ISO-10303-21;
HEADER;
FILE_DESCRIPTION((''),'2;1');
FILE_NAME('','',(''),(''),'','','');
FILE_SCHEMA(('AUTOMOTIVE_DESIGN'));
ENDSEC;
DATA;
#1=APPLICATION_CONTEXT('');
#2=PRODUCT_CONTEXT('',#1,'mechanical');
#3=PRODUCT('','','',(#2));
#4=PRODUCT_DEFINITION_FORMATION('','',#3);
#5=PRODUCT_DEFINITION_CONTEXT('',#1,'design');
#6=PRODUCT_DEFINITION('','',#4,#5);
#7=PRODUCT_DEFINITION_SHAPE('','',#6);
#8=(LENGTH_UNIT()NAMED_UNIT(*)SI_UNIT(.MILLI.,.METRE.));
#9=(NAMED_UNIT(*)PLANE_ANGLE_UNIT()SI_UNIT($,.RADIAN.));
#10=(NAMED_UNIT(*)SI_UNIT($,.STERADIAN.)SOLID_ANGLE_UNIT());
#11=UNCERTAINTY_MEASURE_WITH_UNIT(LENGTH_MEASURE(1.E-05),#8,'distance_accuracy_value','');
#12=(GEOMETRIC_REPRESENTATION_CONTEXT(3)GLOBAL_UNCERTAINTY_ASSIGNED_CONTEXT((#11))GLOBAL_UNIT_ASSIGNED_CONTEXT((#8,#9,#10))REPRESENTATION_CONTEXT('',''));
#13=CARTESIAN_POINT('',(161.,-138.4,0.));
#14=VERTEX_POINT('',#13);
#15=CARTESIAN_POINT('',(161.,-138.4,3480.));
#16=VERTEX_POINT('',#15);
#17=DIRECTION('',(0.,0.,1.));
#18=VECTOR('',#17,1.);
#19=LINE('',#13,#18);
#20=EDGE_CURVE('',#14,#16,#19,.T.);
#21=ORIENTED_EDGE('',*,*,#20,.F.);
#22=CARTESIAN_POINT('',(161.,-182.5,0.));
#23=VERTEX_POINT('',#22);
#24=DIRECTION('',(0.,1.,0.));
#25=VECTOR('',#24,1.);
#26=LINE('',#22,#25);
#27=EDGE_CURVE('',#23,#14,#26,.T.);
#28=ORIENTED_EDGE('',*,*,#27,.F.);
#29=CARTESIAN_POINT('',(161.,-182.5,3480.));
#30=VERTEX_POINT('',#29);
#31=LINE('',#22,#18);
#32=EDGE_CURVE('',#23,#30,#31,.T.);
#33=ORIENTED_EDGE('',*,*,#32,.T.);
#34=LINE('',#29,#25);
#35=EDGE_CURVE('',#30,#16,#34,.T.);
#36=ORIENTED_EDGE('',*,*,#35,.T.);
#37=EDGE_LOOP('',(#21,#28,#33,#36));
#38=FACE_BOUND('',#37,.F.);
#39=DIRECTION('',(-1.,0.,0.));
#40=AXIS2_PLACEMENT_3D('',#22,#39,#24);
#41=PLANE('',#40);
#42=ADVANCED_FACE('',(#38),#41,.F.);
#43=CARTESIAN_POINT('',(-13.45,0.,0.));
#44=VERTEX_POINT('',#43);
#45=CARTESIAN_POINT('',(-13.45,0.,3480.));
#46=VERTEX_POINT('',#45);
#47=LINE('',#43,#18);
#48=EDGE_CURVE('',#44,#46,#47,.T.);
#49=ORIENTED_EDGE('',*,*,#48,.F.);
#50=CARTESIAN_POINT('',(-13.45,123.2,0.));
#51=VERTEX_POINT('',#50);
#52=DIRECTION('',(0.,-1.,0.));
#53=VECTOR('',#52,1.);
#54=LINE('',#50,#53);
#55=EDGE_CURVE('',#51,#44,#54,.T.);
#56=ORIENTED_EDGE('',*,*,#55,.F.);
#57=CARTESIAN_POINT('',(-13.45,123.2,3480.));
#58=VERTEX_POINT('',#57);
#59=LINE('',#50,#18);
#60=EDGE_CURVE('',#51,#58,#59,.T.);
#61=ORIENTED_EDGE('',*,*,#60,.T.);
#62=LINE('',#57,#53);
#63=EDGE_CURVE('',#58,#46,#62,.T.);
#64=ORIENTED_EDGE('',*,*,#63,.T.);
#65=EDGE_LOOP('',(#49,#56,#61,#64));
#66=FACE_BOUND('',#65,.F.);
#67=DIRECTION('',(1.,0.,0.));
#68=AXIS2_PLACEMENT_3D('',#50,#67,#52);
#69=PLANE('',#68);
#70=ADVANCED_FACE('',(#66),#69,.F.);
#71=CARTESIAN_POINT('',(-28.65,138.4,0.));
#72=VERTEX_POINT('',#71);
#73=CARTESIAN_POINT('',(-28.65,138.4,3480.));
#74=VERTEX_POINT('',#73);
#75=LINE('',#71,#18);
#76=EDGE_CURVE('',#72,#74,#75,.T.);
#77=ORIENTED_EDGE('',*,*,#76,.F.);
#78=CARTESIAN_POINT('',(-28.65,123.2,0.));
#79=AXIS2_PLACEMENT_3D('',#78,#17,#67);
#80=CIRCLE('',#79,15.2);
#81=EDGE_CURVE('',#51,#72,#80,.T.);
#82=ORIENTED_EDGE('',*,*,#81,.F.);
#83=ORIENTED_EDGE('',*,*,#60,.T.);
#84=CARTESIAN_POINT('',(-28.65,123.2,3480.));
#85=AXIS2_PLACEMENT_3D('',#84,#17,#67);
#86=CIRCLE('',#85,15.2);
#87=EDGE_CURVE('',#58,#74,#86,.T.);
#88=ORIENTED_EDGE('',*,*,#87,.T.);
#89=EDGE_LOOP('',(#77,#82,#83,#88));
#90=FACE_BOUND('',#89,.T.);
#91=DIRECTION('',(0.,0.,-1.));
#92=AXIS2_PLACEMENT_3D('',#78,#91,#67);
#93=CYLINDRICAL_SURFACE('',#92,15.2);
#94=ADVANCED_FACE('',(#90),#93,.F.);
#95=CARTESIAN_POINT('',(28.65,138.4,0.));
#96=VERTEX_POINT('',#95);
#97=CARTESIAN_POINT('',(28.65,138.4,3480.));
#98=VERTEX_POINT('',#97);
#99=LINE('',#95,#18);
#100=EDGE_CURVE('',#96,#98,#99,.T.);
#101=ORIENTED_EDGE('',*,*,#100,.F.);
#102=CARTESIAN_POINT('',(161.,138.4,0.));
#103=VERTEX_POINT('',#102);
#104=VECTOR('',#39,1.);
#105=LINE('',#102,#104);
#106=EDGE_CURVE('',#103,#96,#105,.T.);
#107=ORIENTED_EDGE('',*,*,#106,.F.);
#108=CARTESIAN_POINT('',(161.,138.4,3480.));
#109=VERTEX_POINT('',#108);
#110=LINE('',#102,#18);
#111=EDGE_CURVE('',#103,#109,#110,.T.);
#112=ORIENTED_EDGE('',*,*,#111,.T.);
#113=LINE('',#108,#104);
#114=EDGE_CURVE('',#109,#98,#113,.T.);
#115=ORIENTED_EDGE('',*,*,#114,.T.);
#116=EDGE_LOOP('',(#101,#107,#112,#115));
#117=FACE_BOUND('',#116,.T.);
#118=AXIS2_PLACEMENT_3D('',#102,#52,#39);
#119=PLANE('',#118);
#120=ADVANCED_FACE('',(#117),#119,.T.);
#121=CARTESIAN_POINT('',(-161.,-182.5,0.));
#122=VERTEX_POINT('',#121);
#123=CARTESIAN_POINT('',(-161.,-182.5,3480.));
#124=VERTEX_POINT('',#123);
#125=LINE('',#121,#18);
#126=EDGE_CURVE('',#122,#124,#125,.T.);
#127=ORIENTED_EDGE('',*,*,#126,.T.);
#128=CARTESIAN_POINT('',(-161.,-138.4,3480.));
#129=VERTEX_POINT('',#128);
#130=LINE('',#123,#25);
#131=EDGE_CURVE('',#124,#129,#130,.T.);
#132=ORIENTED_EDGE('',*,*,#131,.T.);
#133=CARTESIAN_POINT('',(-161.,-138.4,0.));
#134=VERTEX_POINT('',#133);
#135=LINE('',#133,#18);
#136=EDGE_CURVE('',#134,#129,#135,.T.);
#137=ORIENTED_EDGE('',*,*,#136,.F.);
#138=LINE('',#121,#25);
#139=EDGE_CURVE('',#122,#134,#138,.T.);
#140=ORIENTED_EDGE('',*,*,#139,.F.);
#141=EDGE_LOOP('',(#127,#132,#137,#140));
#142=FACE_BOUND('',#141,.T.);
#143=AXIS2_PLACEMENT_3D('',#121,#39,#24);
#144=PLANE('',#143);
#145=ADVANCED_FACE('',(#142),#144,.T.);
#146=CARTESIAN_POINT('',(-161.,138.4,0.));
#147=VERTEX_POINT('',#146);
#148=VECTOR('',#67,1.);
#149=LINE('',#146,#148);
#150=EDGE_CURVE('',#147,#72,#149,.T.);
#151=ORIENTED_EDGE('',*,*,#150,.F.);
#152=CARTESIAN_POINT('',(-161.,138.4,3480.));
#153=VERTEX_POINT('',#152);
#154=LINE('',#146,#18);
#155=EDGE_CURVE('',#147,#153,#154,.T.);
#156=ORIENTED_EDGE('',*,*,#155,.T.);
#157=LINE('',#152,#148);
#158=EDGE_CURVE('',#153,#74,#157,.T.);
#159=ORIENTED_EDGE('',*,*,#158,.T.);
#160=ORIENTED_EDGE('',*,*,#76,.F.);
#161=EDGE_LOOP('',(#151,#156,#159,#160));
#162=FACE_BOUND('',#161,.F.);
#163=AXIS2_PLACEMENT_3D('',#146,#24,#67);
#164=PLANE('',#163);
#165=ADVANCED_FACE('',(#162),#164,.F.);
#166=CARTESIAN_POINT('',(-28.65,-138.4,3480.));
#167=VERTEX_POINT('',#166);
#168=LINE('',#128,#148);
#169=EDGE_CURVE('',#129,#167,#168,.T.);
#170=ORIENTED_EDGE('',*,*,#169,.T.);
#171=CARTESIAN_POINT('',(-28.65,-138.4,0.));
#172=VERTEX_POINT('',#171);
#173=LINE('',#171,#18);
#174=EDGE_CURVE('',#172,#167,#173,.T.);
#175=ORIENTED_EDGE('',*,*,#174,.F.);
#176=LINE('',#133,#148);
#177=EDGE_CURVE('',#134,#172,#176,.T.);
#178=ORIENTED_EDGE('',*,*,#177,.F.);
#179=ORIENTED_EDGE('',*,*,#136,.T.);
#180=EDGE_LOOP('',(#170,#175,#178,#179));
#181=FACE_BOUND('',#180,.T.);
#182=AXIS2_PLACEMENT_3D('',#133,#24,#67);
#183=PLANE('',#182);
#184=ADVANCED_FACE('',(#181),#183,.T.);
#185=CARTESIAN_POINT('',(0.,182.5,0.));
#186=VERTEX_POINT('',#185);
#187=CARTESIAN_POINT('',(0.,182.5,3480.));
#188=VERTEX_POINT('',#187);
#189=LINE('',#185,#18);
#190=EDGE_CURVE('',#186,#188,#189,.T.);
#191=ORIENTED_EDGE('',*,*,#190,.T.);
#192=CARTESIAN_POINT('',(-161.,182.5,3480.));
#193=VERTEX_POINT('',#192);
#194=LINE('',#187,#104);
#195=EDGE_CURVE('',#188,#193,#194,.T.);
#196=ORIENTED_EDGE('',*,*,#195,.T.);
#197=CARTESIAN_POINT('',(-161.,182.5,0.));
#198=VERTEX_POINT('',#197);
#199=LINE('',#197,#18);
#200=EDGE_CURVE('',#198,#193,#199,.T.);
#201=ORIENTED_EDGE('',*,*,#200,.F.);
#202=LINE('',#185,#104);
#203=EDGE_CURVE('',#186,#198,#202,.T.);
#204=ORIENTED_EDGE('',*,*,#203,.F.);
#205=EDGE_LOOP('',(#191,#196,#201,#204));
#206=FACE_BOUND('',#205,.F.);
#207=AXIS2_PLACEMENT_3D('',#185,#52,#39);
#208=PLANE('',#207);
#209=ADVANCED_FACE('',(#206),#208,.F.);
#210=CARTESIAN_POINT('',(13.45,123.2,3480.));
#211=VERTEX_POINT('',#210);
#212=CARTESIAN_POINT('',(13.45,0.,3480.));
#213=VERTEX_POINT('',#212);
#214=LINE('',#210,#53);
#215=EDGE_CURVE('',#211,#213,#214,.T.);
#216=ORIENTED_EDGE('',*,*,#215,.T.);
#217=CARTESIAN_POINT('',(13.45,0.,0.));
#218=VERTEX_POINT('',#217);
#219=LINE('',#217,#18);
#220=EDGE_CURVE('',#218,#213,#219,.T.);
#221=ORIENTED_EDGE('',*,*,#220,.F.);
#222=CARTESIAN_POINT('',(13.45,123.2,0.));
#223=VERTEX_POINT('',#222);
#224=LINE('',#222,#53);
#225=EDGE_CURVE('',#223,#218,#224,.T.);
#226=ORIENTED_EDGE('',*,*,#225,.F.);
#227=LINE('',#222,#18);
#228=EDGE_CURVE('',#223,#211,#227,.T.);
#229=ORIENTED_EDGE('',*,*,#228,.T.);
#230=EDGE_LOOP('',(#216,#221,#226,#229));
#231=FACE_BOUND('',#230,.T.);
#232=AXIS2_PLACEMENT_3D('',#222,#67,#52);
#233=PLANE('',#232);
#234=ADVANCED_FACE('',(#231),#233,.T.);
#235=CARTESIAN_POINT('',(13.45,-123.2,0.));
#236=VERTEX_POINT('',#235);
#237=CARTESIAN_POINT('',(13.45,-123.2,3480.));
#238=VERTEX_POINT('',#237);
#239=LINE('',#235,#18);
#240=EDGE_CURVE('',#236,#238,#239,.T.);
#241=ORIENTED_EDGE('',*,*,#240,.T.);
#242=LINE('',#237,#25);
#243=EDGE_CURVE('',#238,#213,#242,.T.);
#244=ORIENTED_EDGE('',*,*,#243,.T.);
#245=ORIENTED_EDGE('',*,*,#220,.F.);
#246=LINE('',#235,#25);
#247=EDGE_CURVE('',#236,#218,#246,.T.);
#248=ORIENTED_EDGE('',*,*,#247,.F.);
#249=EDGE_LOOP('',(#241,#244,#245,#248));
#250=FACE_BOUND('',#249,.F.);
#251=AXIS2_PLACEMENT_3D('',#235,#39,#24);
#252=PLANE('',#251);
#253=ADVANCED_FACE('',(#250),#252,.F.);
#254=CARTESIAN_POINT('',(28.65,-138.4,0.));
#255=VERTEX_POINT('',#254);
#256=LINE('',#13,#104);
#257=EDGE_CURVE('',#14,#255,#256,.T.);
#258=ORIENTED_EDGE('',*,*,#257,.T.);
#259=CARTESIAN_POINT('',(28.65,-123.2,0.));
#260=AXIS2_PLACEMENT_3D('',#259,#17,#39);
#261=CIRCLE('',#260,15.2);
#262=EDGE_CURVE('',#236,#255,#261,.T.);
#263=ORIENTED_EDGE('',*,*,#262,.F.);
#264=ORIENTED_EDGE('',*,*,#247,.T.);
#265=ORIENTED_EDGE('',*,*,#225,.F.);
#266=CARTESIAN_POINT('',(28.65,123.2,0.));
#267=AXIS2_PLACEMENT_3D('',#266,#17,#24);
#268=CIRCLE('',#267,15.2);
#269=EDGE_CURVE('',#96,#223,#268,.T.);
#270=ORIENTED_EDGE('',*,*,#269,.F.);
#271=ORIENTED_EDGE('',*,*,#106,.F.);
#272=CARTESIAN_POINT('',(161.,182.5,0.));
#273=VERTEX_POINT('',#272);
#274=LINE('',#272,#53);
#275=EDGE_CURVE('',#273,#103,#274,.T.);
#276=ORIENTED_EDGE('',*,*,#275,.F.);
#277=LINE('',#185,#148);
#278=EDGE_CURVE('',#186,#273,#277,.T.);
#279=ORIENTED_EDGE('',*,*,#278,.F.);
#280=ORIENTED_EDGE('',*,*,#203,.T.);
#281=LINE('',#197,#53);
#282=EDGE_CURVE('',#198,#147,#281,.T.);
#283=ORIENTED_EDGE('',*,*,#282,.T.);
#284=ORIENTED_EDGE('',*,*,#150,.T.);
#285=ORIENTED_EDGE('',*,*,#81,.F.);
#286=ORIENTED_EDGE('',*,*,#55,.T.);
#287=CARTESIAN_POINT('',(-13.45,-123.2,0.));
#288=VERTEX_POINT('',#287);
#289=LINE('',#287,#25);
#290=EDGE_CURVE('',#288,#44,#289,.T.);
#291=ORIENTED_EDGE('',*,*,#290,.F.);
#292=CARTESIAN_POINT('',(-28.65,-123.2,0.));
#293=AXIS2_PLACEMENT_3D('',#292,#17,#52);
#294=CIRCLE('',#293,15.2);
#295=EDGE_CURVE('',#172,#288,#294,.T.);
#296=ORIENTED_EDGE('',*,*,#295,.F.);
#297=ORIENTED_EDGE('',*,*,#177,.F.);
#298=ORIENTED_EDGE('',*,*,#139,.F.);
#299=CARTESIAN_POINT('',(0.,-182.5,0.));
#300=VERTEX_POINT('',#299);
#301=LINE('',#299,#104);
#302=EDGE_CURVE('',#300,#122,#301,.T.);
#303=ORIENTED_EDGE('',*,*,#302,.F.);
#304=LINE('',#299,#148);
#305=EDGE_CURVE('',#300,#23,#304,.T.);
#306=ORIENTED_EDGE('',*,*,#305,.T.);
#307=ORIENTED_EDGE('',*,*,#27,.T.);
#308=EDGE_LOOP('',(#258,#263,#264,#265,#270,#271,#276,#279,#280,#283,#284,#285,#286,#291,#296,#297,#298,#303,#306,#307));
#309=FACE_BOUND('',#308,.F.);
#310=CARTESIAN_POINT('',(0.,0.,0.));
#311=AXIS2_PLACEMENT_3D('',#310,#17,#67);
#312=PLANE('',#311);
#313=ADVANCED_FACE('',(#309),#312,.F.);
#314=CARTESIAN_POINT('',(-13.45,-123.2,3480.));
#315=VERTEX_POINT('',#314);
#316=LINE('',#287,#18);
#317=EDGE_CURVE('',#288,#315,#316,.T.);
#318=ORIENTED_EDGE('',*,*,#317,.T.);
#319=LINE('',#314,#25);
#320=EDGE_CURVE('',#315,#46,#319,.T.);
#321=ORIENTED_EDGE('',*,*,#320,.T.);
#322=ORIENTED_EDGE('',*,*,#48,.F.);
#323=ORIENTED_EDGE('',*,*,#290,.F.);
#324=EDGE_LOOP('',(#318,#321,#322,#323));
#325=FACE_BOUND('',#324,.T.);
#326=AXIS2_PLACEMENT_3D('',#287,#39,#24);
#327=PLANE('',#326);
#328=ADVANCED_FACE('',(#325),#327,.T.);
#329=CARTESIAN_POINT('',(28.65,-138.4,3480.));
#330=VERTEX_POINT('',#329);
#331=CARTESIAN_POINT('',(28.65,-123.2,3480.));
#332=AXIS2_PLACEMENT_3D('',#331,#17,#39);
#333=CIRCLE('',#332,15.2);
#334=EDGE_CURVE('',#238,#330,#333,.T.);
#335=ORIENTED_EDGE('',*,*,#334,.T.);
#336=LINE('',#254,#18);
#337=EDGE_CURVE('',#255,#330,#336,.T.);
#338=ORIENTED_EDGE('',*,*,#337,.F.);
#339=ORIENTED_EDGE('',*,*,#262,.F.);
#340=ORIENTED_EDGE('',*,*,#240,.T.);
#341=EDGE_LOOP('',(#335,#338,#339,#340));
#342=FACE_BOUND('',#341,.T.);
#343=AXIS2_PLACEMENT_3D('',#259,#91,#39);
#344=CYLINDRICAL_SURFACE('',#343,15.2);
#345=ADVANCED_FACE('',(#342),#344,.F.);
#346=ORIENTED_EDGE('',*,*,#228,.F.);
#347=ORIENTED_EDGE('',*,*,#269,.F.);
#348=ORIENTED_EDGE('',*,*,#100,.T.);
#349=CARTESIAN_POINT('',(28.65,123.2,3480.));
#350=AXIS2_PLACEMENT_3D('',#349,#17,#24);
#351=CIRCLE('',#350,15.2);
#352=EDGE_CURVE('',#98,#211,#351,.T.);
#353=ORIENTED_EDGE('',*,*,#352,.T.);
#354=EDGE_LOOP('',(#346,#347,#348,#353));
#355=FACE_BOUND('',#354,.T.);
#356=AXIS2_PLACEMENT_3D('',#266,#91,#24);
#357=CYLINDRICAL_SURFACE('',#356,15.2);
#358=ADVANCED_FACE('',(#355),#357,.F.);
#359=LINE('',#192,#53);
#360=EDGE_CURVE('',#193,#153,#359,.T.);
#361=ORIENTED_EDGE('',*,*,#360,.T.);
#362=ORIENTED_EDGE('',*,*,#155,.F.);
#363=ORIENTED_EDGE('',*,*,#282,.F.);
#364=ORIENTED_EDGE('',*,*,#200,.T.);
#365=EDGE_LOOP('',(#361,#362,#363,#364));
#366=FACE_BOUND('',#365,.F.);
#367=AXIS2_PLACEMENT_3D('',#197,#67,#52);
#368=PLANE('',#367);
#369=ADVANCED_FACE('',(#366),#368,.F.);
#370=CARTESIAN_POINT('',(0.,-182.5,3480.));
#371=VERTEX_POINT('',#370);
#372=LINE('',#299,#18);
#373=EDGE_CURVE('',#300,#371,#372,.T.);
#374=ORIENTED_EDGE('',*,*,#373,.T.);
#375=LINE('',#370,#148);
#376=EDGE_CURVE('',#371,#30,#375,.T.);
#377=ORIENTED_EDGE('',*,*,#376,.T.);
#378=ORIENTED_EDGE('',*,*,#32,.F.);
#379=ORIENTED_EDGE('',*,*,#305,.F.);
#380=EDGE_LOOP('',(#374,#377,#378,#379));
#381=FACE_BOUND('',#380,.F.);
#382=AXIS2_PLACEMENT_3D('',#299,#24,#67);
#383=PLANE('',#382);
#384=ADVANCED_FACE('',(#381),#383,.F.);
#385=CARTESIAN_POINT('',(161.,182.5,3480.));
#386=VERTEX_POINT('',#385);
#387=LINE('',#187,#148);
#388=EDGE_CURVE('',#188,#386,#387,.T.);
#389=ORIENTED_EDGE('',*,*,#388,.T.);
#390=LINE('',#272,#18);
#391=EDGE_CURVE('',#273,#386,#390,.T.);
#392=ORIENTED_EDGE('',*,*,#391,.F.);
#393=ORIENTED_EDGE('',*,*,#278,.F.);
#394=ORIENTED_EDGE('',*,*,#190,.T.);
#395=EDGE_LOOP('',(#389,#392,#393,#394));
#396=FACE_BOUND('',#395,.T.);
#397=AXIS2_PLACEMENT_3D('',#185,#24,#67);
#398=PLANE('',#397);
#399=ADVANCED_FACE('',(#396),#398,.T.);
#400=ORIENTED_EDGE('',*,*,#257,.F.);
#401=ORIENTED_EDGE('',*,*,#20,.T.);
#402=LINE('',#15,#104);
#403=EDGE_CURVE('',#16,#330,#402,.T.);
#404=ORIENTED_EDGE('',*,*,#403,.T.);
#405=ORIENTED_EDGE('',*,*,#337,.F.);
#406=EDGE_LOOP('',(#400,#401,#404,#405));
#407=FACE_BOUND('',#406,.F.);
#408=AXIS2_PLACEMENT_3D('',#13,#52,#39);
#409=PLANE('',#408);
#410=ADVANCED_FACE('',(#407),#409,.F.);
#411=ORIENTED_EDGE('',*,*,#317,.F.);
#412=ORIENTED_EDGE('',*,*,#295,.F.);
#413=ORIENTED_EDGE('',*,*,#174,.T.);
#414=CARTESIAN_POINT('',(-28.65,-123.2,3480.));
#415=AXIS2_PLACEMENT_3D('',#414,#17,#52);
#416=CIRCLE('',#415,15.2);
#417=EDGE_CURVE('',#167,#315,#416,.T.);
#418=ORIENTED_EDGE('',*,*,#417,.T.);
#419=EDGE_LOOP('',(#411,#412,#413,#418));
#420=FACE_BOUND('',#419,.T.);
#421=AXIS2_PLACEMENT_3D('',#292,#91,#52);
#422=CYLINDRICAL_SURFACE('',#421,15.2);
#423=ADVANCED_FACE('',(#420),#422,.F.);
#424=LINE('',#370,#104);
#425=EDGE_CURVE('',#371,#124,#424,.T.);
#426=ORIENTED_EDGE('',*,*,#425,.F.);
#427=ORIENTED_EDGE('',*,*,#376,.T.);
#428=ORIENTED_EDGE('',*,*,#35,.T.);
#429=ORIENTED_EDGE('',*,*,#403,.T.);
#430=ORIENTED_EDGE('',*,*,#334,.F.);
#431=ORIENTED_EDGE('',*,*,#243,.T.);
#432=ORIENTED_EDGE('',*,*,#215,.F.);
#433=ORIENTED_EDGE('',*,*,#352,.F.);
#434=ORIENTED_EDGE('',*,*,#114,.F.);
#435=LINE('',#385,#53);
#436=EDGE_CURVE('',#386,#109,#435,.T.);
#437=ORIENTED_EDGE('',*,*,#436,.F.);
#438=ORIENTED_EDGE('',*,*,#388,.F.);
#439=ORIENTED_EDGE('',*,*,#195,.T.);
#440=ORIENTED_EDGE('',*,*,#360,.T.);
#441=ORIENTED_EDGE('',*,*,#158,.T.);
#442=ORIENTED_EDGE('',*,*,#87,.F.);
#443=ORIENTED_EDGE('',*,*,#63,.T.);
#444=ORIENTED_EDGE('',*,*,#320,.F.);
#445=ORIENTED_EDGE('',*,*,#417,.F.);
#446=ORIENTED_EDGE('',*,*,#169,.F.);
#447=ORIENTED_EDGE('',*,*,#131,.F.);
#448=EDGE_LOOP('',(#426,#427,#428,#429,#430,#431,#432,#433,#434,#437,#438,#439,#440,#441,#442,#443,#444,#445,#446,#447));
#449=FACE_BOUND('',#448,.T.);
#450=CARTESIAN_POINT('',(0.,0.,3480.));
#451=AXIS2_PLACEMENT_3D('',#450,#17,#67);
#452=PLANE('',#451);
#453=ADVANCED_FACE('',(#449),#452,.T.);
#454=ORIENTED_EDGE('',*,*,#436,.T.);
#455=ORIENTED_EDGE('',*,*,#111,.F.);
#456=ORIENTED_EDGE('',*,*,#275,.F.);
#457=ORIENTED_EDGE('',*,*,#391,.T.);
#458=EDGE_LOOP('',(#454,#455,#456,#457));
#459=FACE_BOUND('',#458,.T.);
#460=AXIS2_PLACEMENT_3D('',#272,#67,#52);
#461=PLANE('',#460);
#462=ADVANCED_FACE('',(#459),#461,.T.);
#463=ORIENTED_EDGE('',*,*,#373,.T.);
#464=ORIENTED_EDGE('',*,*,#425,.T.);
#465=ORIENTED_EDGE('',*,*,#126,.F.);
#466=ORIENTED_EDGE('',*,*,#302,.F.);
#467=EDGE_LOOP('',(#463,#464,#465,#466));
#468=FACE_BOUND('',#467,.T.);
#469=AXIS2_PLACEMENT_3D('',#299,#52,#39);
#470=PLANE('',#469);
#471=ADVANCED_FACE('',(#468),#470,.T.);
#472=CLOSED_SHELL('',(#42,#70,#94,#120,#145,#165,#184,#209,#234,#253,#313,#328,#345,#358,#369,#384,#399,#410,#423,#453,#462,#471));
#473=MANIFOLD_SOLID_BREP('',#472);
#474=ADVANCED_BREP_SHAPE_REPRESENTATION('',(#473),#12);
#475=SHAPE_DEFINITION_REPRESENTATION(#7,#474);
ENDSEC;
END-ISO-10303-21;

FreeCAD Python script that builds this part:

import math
import FreeCAD as App
import Part
import Sketcher

V = App.Vector
Q = App.Units.Quantity

doc = App.newDocument("Part")
body = doc.addObject("PartDesign::Body", "Body")

# Sketch on XY plane
sketch1 = doc.addObject("Sketcher::SketchObject", "Sketch")
body.addObject(sketch1)
sketch1.AttachmentSupport = (doc.XY_Plane, [""])
sketch1.MapMode = "FlatFace"
sketch1.addGeometry([
    Part.LineSegment(V(-161, -138.4, 0), V(-161, -182.5, 0)),  # 0
    Part.LineSegment(V(-161, -182.5, 0), V(161, -182.5, 0)),  # 1
    Part.LineSegment(V(161, -182.5, 0), V(161, -138.4, 0)),  # 2
    Part.LineSegment(V(161, -138.4, 0), V(28.65, -138.4, 0)),  # 3
    Part.ArcOfCircle(Part.Circle(V(28.65, -123.2, 0), V(0, 0, 1), 15.2), math.radians(180), math.radians(270)),  # 4
    Part.LineSegment(V(13.45, -123.2, 0), V(13.45, 123.2, 0)),  # 5
    Part.ArcOfCircle(Part.Circle(V(28.65, 123.2, 0), V(0, 0, 1), 15.2), math.radians(90), math.radians(180)),  # 6
    Part.LineSegment(V(28.65, 138.4, 0), V(161, 138.4, 0)),  # 7
    Part.LineSegment(V(161, 138.4, 0), V(161, 182.5, 0)),  # 8
    Part.LineSegment(V(161, 182.5, 0), V(-161, 182.5, 0)),  # 9
    Part.LineSegment(V(-161, 182.5, 0), V(-161, 138.4, 0)),  # 10
    Part.LineSegment(V(-161, 138.4, 0), V(-28.65, 138.4, 0)),  # 11
    Part.ArcOfCircle(Part.Circle(V(-28.65, 123.2, 0), V(0, 0, 1), 15.2), math.radians(0), math.radians(90)),  # 12
    Part.LineSegment(V(-13.45, 123.2, 0), V(-13.45, -123.2, 0)),  # 13
    Part.ArcOfCircle(Part.Circle(V(-28.65, -123.2, 0), V(0, 0, 1), 15.2), math.radians(-90), math.radians(0)),  # 14
    Part.LineSegment(V(-28.65, -138.4, 0), V(-161, -138.4, 0)),  # 15
], False)
sketch1.addConstraint([
    Sketcher.Constraint("Coincident", 0, 2, 1, 1),
    Sketcher.Constraint("Coincident", 1, 2, 2, 1),
    Sketcher.Constraint("Coincident", 2, 2, 3, 1),
    Sketcher.Constraint("Tangent", 3, 2, 4, 2),
    Sketcher.Constraint("Tangent", 4, 1, 5, 1),
    Sketcher.Constraint("Tangent", 5, 2, 6, 2),
    Sketcher.Constraint("Tangent", 6, 1, 7, 1),
    Sketcher.Constraint("Coincident", 7, 2, 8, 1),
    Sketcher.Constraint("Coincident", 8, 2, 9, 1),
    Sketcher.Constraint("Coincident", 9, 2, 10, 1),
    Sketcher.Constraint("Coincident", 10, 2, 11, 1),
    Sketcher.Constraint("Tangent", 11, 2, 12, 2),
    Sketcher.Constraint("Tangent", 12, 1, 13, 1),
    Sketcher.Constraint("Tangent", 13, 2, 14, 2),
    Sketcher.Constraint("Tangent", 14, 1, 15, 1),
    Sketcher.Constraint("Coincident", 15, 2, 0, 1),
    Sketcher.Constraint("Vertical", 0),
    Sketcher.Constraint("Horizontal", 1),
    Sketcher.Constraint("Vertical", 2),
    Sketcher.Constraint("Horizontal", 3),
    Sketcher.Constraint("Vertical", 5),
    Sketcher.Constraint("Horizontal", 7),
    Sketcher.Constraint("Vertical", 8),
    Sketcher.Constraint("Horizontal", 9),
    Sketcher.Constraint("Vertical", 10),
    Sketcher.Constraint("Horizontal", 11),
    Sketcher.Constraint("Vertical", 13),
    Sketcher.Constraint("Horizontal", 15),
    Sketcher.Constraint("Equal", 4, 6),
    Sketcher.Constraint("Equal", 6, 12),
    Sketcher.Constraint("Equal", 12, 14),
    Sketcher.Constraint("Symmetric", 4, 3, 12, 3, -1, 1),
    Sketcher.Constraint("Symmetric", 0, 2, 8, 2, -1, 1),
    Sketcher.Constraint("Symmetric", 7, 2, 10, 2, -2),
    Sketcher.Constraint("Symmetric", 2, 2, 15, 2, -2),
    Sketcher.Constraint("Radius", 4, Q("15.2 mm")),
    Sketcher.Constraint("DistanceY", 0, 2, 0, 1, Q("44.1 mm")),
    Sketcher.Constraint("DistanceX", 0, 2, -1, 1, Q("161 mm")),
    Sketcher.Constraint("DistanceY", 0, 2, -1, 1, Q("182.5 mm")),
    Sketcher.Constraint("DistanceX", -1, 1, 4, 1, Q("13.45 mm")),
])
pad1 = doc.addObject("PartDesign::Pad", "Pad")
body.addObject(pad1)
pad1.Profile = sketch1
pad1.Length = 3480

doc.recompute()
